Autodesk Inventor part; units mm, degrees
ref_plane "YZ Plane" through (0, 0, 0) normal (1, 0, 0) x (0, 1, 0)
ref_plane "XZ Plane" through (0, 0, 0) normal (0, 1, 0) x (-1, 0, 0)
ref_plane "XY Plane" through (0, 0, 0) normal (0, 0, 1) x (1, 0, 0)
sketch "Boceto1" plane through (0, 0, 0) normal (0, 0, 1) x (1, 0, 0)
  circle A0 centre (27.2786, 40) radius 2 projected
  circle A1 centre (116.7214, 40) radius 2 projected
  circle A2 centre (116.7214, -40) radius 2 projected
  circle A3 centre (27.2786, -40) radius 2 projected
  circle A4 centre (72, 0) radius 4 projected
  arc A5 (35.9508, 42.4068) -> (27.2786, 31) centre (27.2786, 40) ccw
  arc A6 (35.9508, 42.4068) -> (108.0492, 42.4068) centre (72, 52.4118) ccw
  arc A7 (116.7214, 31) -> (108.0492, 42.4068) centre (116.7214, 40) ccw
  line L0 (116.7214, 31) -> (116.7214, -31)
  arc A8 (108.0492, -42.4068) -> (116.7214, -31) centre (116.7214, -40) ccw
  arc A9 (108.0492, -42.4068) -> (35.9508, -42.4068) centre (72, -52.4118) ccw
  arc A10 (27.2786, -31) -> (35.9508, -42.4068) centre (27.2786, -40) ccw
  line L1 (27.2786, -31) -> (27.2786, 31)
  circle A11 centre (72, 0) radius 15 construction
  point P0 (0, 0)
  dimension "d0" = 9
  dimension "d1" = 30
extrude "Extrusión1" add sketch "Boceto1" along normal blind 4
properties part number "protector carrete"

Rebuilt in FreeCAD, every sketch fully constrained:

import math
import FreeCAD as App
import Part
import Sketcher
from FreeCAD import Vector
Q = App.Units.Quantity

doc = App.newDocument("Part")
body = doc.addObject("PartDesign::Body", "Body")

sketch1 = doc.addObject("Sketcher::SketchObject", "Sketch")
body.addObject(sketch1)
sketch1.AttachmentSupport = (doc.XY_Plane, [""])
sketch1.MapMode = "FlatFace"
sketch1.addGeometry([
    Part.ArcOfCircle(Part.Circle(Vector(72, 52.4, 0), Vector(0, 0, 1), 37.4), math.radians(-164), math.radians(-16)),
    Part.ArcOfCircle(Part.Circle(Vector(27.3, 40, 0), Vector(0, 0, 1), 9), math.radians(16), math.radians(270)),
    Part.LineSegment(Vector(27.3, 31, 0), Vector(27.3, -31, 0)),
    Part.ArcOfCircle(Part.Circle(Vector(27.3, -40, 0), Vector(0, 0, 1), 9), math.radians(90), math.radians(344)),
    Part.ArcOfCircle(Part.Circle(Vector(72, -52.4, 0), Vector(0, 0, 1), 37.4), math.radians(16), math.radians(164)),
    Part.ArcOfCircle(Part.Circle(Vector(116.7, -40, 0), Vector(0, 0, 1), 9), math.radians(-164), math.radians(90)),
    Part.LineSegment(Vector(116.7, -31, 0), Vector(116.7, 31, 0)),
    Part.ArcOfCircle(Part.Circle(Vector(116.7, 40, 0), Vector(0, 0, 1), 9), math.radians(-90), math.radians(164)),
    Part.Circle(Vector(27.3, -40, 0), Vector(0, 0, 1), 2),
    Part.Circle(Vector(116.7, -40, 0), Vector(0, 0, 1), 2),
    Part.Circle(Vector(27.3, 40, 0), Vector(0, 0, 1), 2),
    Part.Circle(Vector(72, 0, 0), Vector(0, 0, 1), 4),
    Part.Circle(Vector(116.7, 40, 0), Vector(0, 0, 1), 2),
], False)
sketch1.addConstraint([
    Sketcher.Constraint("Tangent", 0, 1, 1, 1),
    Sketcher.Constraint("Coincident", 1, 2, 2, 1),
    Sketcher.Constraint("Coincident", 2, 2, 3, 1),
    Sketcher.Constraint("Tangent", 3, 2, 4, 2),
    Sketcher.Constraint("Tangent", 4, 1, 5, 1),
    Sketcher.Constraint("Coincident", 5, 2, 6, 1),
    Sketcher.Constraint("Coincident", 6, 2, 7, 1),
    Sketcher.Constraint("Tangent", 7, 2, 0, 2),
    Sketcher.Constraint("Vertical", 2),
    Sketcher.Constraint("Vertical", 6),
    Sketcher.Constraint("Coincident", 8, 3, 3, 3),
    Sketcher.Constraint("Coincident", 9, 3, 5, 3),
    Sketcher.Constraint("Coincident", 10, 3, 1, 3),
    Sketcher.Constraint("Coincident", 12, 3, 7, 3),
    Sketcher.Constraint("Equal", 1, 3),
    Sketcher.Constraint("Equal", 0, 4),
    Sketcher.Constraint("Equal", 3, 5),
    Sketcher.Constraint("Equal", 5, 7),
    Sketcher.Constraint("Equal", 8, 9),
    Sketcher.Constraint("Equal", 9, 10),
    Sketcher.Constraint("Equal", 10, 12),
    Sketcher.Constraint("Symmetric", 1, 3, 3, 3, -1),
    Sketcher.Constraint("Symmetric", 5, 3, 7, 3, -1),
    Sketcher.Constraint("PointOnObject", 11, 3, -1),
    Sketcher.Constraint("Horizontal", 3, 3, 5, 3),
    Sketcher.Constraint("Vertical", 4, 3, 11, 3),
    Sketcher.Constraint("Vertical", 10, 3, 1, 2),
    Sketcher.Constraint("Vertical", 12, 3, 5, 2),
    Sketcher.Constraint("Radius", 1, Q("9 mm")),
    Sketcher.Constraint("Diameter", 8, Q("4 mm")),
    Sketcher.Constraint("Diameter", 11, Q("8 mm")),
    Sketcher.Constraint("DistanceY", 2, 2, 2, 1, Q("62 mm")),
    Sketcher.Constraint("DistanceX", -1, 1, 0, 3, Q("72 mm")),
    Sketcher.Constraint("Radius", 0, Q("37.4118 mm")),
    Sketcher.Constraint("DistanceY", 0, 1, 0, 3, Q("10.005 mm")),
])
pad1 = doc.addObject("PartDesign::Pad", "Pad")
body.addObject(pad1)
pad1.Profile = sketch1
pad1.Length = 4

doc.recompute()
